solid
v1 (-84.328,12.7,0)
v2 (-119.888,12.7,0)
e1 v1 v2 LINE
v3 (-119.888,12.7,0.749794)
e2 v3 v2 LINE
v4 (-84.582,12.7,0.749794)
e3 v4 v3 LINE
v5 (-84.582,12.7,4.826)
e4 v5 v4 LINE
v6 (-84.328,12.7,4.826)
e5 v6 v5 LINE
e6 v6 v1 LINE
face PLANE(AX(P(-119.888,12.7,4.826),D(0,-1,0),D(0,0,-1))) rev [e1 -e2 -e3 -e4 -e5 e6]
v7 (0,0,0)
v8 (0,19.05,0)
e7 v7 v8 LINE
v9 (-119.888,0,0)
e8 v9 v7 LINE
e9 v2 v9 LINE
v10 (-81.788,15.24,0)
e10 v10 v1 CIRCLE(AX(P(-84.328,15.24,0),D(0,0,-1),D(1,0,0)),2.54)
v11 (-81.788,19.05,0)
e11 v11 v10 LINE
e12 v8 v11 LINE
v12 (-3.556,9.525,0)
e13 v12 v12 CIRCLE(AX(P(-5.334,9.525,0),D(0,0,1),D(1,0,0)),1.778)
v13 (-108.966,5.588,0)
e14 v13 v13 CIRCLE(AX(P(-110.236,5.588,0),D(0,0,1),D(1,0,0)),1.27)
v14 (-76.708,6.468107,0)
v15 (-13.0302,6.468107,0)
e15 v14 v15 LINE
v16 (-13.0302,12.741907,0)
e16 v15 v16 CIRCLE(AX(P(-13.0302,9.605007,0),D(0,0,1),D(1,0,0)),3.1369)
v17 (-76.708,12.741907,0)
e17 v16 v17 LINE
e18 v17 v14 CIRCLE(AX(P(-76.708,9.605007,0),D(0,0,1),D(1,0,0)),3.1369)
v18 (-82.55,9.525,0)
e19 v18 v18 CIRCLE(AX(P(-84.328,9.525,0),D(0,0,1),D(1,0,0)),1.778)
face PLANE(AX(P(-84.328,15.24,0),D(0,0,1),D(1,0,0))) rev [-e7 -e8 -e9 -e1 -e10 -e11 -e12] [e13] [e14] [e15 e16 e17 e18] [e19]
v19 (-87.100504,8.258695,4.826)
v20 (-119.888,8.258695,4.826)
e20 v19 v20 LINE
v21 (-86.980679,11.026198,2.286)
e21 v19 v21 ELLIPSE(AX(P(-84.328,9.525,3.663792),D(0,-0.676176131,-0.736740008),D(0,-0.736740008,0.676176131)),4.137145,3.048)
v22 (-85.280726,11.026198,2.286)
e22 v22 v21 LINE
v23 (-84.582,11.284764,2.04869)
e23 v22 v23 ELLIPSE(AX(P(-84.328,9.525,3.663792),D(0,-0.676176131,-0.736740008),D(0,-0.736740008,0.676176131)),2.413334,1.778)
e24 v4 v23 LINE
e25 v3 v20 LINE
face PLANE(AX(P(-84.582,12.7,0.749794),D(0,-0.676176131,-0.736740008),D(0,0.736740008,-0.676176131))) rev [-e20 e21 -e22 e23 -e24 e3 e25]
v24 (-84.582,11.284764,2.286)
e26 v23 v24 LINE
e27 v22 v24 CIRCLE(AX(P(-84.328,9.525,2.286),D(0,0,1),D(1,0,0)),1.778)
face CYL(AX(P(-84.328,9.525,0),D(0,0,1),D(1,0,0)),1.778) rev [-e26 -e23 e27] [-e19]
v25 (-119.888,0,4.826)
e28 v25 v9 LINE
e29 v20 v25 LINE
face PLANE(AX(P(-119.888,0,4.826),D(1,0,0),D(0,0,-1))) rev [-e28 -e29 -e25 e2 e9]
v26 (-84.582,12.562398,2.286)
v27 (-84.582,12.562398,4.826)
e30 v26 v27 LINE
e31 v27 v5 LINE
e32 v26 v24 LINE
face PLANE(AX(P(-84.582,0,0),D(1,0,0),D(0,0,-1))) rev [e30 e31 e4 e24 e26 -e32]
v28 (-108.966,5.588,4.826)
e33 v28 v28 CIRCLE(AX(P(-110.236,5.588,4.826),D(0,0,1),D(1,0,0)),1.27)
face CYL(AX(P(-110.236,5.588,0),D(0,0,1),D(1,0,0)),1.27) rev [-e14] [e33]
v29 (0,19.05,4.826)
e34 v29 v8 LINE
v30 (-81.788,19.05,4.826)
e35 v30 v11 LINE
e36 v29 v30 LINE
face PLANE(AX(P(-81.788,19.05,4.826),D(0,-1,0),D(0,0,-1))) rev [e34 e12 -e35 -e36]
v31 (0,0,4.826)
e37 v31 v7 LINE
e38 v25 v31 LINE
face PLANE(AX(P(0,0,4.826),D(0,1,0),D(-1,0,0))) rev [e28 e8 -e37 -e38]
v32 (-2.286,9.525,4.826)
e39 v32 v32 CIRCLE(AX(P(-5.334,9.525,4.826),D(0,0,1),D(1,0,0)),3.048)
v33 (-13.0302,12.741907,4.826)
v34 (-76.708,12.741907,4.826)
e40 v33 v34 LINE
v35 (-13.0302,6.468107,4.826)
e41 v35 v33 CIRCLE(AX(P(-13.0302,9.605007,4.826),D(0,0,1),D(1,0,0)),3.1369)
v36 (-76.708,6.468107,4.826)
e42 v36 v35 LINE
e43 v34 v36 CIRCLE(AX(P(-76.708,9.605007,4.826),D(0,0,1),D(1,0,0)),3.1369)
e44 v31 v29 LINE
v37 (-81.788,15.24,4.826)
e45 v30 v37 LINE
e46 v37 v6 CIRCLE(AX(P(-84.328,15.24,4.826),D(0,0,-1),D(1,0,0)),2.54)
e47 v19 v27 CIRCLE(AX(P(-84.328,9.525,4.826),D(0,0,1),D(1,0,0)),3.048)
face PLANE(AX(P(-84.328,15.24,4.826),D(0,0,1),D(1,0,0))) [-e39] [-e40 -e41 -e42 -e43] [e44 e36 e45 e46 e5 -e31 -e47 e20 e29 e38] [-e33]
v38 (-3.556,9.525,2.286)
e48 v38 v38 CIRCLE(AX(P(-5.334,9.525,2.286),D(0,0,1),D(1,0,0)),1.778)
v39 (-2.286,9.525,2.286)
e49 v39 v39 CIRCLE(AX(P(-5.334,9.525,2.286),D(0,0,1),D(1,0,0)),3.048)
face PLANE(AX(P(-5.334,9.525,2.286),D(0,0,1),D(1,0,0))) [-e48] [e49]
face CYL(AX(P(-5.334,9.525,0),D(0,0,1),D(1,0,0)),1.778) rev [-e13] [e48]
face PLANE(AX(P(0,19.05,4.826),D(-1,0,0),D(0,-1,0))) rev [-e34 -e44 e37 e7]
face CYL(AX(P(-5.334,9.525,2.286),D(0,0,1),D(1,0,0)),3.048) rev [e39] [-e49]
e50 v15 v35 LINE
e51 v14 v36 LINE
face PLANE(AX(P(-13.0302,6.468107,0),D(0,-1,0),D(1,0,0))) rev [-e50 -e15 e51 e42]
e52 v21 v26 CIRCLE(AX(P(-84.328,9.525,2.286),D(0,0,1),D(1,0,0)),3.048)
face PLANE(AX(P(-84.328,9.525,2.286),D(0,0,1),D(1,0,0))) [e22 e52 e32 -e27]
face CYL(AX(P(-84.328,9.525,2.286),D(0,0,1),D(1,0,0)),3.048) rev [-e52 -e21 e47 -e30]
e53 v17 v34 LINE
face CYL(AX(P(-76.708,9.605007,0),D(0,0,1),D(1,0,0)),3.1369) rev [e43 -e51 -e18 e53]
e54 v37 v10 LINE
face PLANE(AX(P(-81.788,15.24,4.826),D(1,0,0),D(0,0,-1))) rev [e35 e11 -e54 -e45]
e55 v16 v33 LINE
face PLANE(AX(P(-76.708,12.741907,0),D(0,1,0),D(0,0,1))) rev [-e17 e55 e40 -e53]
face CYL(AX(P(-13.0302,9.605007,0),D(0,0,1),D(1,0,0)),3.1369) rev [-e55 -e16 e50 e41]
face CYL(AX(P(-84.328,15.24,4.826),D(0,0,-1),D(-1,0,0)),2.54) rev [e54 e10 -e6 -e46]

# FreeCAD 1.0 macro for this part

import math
import FreeCAD as App
import Part
import Sketcher
Q = App.Units.Quantity

doc = App.newDocument("Part")
body = doc.addObject("PartDesign::Body", "Body")

# Sketch on XY plane
sketch1 = body.newObject("Sketcher::SketchObject", "Sketch")
sketch1.AttachmentSupport = (doc.getObject("XY_Plane"), [""])
sketch1.MapMode = "FlatFace"
sketch1.addGeometry([
    Part.LineSegment(App.Vector(-119.888, 0, 0), App.Vector(0, 0, 0)),  # 0
    Part.LineSegment(App.Vector(0, 0, 0), App.Vector(0, 19.05, 0)),  # 1
    Part.LineSegment(App.Vector(0, 19.05, 0), App.Vector(-81.788, 19.05, 0)),  # 2
    Part.LineSegment(App.Vector(-81.788, 19.05, 0), App.Vector(-81.788, 15.24, 0)),  # 3
    Part.ArcOfCircle(Part.Circle(App.Vector(-84.328, 15.24, 0), App.Vector(0, 0, 1), 2.54), math.radians(-90), math.radians(0)),  # 4
    Part.LineSegment(App.Vector(-84.328, 12.7, 0), App.Vector(-119.888, 12.7, 0)),  # 5
    Part.LineSegment(App.Vector(-119.888, 12.7, 0), App.Vector(-119.888, 0, 0)),  # 6
], False)
sketch1.addConstraint([
    Sketcher.Constraint("Coincident", 0, 2, 1, 1),
    Sketcher.Constraint("Coincident", 1, 2, 2, 1),
    Sketcher.Constraint("Coincident", 2, 2, 3, 1),
    Sketcher.Constraint("Tangent", 3, 2, 4, 2),
    Sketcher.Constraint("Tangent", 4, 1, 5, 1),
    Sketcher.Constraint("Coincident", 5, 2, 6, 1),
    Sketcher.Constraint("Coincident", 6, 2, 0, 1),
    Sketcher.Constraint("Horizontal", 0),
    Sketcher.Constraint("Vertical", 1),
    Sketcher.Constraint("Horizontal", 2),
    Sketcher.Constraint("Vertical", 3),
    Sketcher.Constraint("Horizontal", 5),
    Sketcher.Constraint("Vertical", 6),
    Sketcher.Constraint("Coincident", 0, 2, -1, 1),
    Sketcher.Constraint("Radius", 4, Q("0.1 in")),
    Sketcher.Constraint("DistanceX", 5, 2, 5, 1, Q("1.4 in")),
    Sketcher.Constraint("DistanceY", 6, 2, 6, 1, Q("0.5 in")),
    Sketcher.Constraint("DistanceX", 0, 1, 0, 2, Q("4.72 in")),
    Sketcher.Constraint("DistanceY", 1, 1, 1, 2, Q("0.75 in")),
])
pad1 = body.newObject("PartDesign::Pad", "Pad")
pad1.Profile = sketch1
pad1.Length = Q("0.19 in")

# Sketch on YZ plane
sketch2 = body.newObject("Sketcher::SketchObject", "Sketch001")
sketch2.AttachmentSupport = (doc.getObject("YZ_Plane"), [""])
sketch2.MapMode = "FlatFace"
sketch2.AttachmentOffset = App.Placement(App.Vector(0, 0, -4.72 * 25.4), App.Rotation())
sketch2.addGeometry([
    Part.LineSegment(App.Vector(12.7, 0.749794, 0), App.Vector(8.258695, 4.826, 0)),
    Part.LineSegment(App.Vector(8.258695, 4.826, 0), App.Vector(12.7, 4.826, 0)),
    Part.LineSegment(App.Vector(12.7, 4.826, 0), App.Vector(12.7, 0.749794, 0)),
], False)
sketch2.addConstraint([
    Sketcher.Constraint("Coincident", 0, 2, 1, 1),
    Sketcher.Constraint("Coincident", 1, 2, 2, 1),
    Sketcher.Constraint("Coincident", 2, 2, 0, 1),
    Sketcher.Constraint("Horizontal", 1),
    Sketcher.Constraint("Vertical", 2),
    Sketcher.Constraint("DistanceX", -1, 1, 1, 2, Q("0.5 in")),
    Sketcher.Constraint("DistanceY", -1, 1, 0, 2, Q("0.19 in")),
    Sketcher.Constraint("Distance", 0, 6.028321),
    Sketcher.Constraint("DistanceX", 1, 1, 1, 2, 4.441305),
])
pocket1 = body.newObject("PartDesign::Pocket", "Pocket")
pocket1.Profile = sketch2
pocket1.Length = Q("1.39 in")
pocket1.Reversed = True

# Sketch on XY plane
sketch3 = body.newObject("Sketcher::SketchObject", "Sketch002")
sketch3.AttachmentSupport = (doc.getObject("XY_Plane"), [""])
sketch3.MapMode = "FlatFace"
sketch3.AttachmentOffset = App.Placement(App.Vector(0, 0, 0.19 * 25.4), App.Rotation())
sketch3.addGeometry([
    Part.Circle(App.Vector(-5.334, 9.525, 0), App.Vector(0, 0, 1), 3.048),
    Part.Circle(App.Vector(-84.328, 9.525, 0), App.Vector(0, 0, 1), 3.048),
], False)
sketch3.addConstraint([
    Sketcher.Constraint("Equal", 0, 1),
    Sketcher.Constraint("Horizontal", 0, 3, 1, 3),
    Sketcher.Constraint("Diameter", 0, Q("0.24 in")),
    Sketcher.Constraint("DistanceX", 0, 3, -1, 1, Q("0.21 in")),
    Sketcher.Constraint("DistanceX", 1, 3, -1, 1, Q("3.32 in")),
    Sketcher.Constraint("DistanceY", -1, 1, 0, 3, Q("0.375 in")),
])
pocket2 = body.newObject("PartDesign::Pocket", "Pocket001")
pocket2.Profile = sketch3
pocket2.Length = Q("0.1 in")

# Sketch on XY plane
sketch4 = body.newObject("Sketcher::SketchObject", "Sketch003")
sketch4.AttachmentSupport = (doc.getObject("XY_Plane"), [""])
sketch4.MapMode = "FlatFace"
sketch4.AttachmentOffset = App.Placement(App.Vector(0, 0, 0.19 * 25.4), App.Rotation())
sketch4.addGeometry([
    Part.Circle(App.Vector(-5.334, 9.525, 0), App.Vector(0, 0, 1), 1.778),
    Part.Circle(App.Vector(-84.328, 9.525, 0), App.Vector(0, 0, 1), 1.778),
    Part.Circle(App.Vector(-110.236, 5.588, 0), App.Vector(0, 0, 1), 1.27),
], False)
sketch4.addConstraint([
    Sketcher.Constraint("Equal", 0, 1),
    Sketcher.Constraint("Horizontal", 0, 3, 1, 3),
    Sketcher.Constraint("Diameter", 2, Q("0.1 in")),
    Sketcher.Constraint("Diameter", 0, Q("0.14 in")),
    Sketcher.Constraint("DistanceX", 0, 3, -1, 1, Q("0.21 in")),
    Sketcher.Constraint("DistanceX", 1, 3, -1, 1, Q("3.32 in")),
    Sketcher.Constraint("DistanceX", 2, 3, -1, 1, Q("4.34 in")),
    Sketcher.Constraint("DistanceY", -1, 1, 2, 3, Q("0.22 in")),
    Sketcher.Constraint("DistanceY", -1, 1, 0, 3, Q("0.375 in")),
])
pocket3 = body.newObject("PartDesign::Pocket", "Pocket002")
pocket3.Profile = sketch4
pocket3.Type = "ThroughAll"

# Sketch on XY plane
sketch5 = body.newObject("Sketcher::SketchObject", "Sketch004")
sketch5.AttachmentSupport = (doc.getObject("XY_Plane"), [""])
sketch5.MapMode = "FlatFace"
sketch5.AttachmentOffset = App.Placement(App.Vector(0, 0, 0.19 * 25.4), App.Rotation())
sketch5.addGeometry([
    Part.LineSegment(App.Vector(-13.0302, 12.741907, 0), App.Vector(-76.708, 12.741907, 0)),
    Part.ArcOfCircle(Part.Circle(App.Vector(-76.708, 9.605007, 0), App.Vector(0, 0, 1), 3.1369), math.radians(90), math.radians(270)),
    Part.LineSegment(App.Vector(-76.708, 6.468107, 0), App.Vector(-13.0302, 6.468107, 0)),
    Part.ArcOfCircle(Part.Circle(App.Vector(-13.0302, 9.605007, 0), App.Vector(0, 0, 1), 3.1369), math.radians(-90), math.radians(90)),
], False)
sketch5.addConstraint([
    Sketcher.Constraint("Tangent", 0, 2, 1, 1),
    Sketcher.Constraint("Tangent", 1, 2, 2, 1),
    Sketcher.Constraint("Tangent", 2, 2, 3, 1),
    Sketcher.Constraint("Tangent", 3, 2, 0, 1),
    Sketcher.Constraint("Horizontal", 0),
    Sketcher.Constraint("Horizontal", 2),
    Sketcher.Constraint("Radius", 1, Q("0.1235 in")),
    Sketcher.Constraint("DistanceX", 0, 2, 0, 1, Q("2.507 in")),
    Sketcher.Constraint("DistanceX", 1, 3, -1, 1, Q("3.02 in")),
    Sketcher.Constraint("DistanceY", -1, 1, 1, 3, 9.605007),
])
pocket4 = body.newObject("PartDesign::Pocket", "Pocket003")
pocket4.Profile = sketch5
pocket4.Type = "ThroughAll"

doc.recompute()
